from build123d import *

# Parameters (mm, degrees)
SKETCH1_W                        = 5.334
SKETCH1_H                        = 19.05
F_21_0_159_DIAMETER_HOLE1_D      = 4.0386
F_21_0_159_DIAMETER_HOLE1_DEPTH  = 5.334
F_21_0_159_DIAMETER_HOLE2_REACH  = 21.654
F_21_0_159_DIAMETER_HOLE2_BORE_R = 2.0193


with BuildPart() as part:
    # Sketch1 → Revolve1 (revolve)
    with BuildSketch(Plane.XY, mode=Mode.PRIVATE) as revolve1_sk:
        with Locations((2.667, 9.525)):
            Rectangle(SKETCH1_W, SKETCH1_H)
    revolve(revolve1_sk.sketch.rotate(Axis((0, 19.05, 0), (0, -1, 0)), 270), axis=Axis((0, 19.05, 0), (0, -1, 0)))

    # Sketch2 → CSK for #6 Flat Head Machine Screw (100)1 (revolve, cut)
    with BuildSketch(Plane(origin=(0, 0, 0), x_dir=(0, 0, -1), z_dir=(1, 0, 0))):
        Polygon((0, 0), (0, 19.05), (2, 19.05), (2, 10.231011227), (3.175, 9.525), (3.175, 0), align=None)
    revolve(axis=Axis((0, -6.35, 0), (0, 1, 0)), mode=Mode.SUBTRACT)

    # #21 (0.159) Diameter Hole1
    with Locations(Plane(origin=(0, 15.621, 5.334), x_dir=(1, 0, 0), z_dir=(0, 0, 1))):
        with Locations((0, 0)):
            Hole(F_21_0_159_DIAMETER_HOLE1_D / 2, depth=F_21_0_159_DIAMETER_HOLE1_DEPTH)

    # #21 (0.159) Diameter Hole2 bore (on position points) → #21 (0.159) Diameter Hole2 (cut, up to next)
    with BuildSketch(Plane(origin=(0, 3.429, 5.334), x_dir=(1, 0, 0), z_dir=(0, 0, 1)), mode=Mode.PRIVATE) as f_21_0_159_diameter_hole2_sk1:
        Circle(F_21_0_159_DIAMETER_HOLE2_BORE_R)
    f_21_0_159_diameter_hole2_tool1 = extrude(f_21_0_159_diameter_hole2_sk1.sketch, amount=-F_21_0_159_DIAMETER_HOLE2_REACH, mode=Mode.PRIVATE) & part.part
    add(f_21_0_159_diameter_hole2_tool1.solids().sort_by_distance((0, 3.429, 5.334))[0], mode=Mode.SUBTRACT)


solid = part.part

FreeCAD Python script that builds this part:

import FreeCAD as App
import Part
import Sketcher
from FreeCAD import Vector
Q = App.Units.Quantity

doc = App.newDocument("Part")
params = doc.addObject("Spreadsheet::Sheet", "Params")
for row, (alias, value) in enumerate([
    ("sketch1_width", "0.21 in"),
    ("sketch1_height", "0.75 in"),
    ("revolution_angle", "360 deg"),
    ("sketch2_width", "0.75 in"),
    ("sketch2_width2", "0.375 in"),
    ("sketch2_height", "0.125 in"),
    ("groove_angle", "360 deg"),
    ("sketch3_diameter", "0.159 in"),
    ("hole_diameter", "0.159 in"),
    ("hole_depth", "0.21 in"),
    ("sketch4_diameter", "0.159 in"),
], start=1):
    params.set(f"A{row}", alias)
    params.set(f"B{row}", "=" + value)
    params.setAlias(f"B{row}", alias)

body = doc.addObject("PartDesign::Body", "Body")

sketch1 = body.newObject("Sketcher::SketchObject", "Sketch")
sketch1.AttachmentSupport = (doc.getObject("XY_Plane"), [""])
sketch1.MapMode = "FlatFace"
sketch1.addGeometry([
    Part.LineSegment(Vector(0, 19, 0), Vector(0, 0, 0)),
    Part.LineSegment(Vector(0, 0, 0), Vector(5, 0, 0)),
    Part.LineSegment(Vector(5, 0, 0), Vector(5, 19, 0)),
    Part.LineSegment(Vector(5, 19, 0), Vector(0, 19, 0)),
], False)
sketch1.addConstraint([
    Sketcher.Constraint("Coincident", 0, 2, 1, 1),
    Sketcher.Constraint("Coincident", 1, 2, 2, 1),
    Sketcher.Constraint("Coincident", 2, 2, 3, 1),
    Sketcher.Constraint("Coincident", 3, 2, 0, 1),
    Sketcher.Constraint("Vertical", 0),
    Sketcher.Constraint("Horizontal", 1),
    Sketcher.Constraint("Vertical", 2),
    Sketcher.Constraint("Horizontal", 3),
    Sketcher.Constraint("Coincident", 0, 2, -1, 1),
    Sketcher.Constraint("DistanceX", 1, 1, 1, 2, Q("0.21 in")),
    Sketcher.Constraint("DistanceY", 0, 2, 0, 1, Q("0.75 in")),
])
sketch1.setExpression("Constraints[9]", "Params.sketch1_width")
sketch1.setExpression("Constraints[10]", "Params.sketch1_height")
revolution = body.newObject("PartDesign::Revolution", "Revolution")
revolution.Profile = sketch1
revolution.ReferenceAxis = (sketch1, ["V_Axis"])
revolution.setExpression("Angle", "Params.revolution_angle")

sketch2 = body.newObject("Sketcher::SketchObject", "Sketch001")
sketch2.AttachmentSupport = (doc.getObject("YZ_Plane"), [""])
sketch2.MapMode = "FlatFace"
sketch2.addGeometry([
    Part.LineSegment(Vector(19.1, 0, 0), Vector(0, 0, 0)),
    Part.LineSegment(Vector(0, 0, 0), Vector(0, -3.2, 0)),
    Part.LineSegment(Vector(0, -3.2, 0), Vector(9.5, -3.2, 0)),
    Part.LineSegment(Vector(9.5, -3.2, 0), Vector(10.2, -2, 0)),
    Part.LineSegment(Vector(10.2, -2, 0), Vector(19.1, -2, 0)),
    Part.LineSegment(Vector(19.1, -2, 0), Vector(19.1, 0, 0)),
], False)
sketch2.addConstraint([
    Sketcher.Constraint("Coincident", 0, 2, 1, 1),
    Sketcher.Constraint("Coincident", 1, 2, 2, 1),
    Sketcher.Constraint("Coincident", 2, 2, 3, 1),
    Sketcher.Constraint("Coincident", 3, 2, 4, 1),
    Sketcher.Constraint("Coincident", 4, 2, 5, 1),
    Sketcher.Constraint("Coincident", 5, 2, 0, 1),
    Sketcher.Constraint("Horizontal", 0),
    Sketcher.Constraint("Vertical", 1),
    Sketcher.Constraint("Horizontal", 2),
    Sketcher.Constraint("Horizontal", 4),
    Sketcher.Constraint("Vertical", 5),
    Sketcher.Constraint("Coincident", 0, 2, -1, 1),
    Sketcher.Constraint("Angle", 3, Q("59 deg")),
    Sketcher.Constraint("DistanceX", 0, 2, 0, 1, Q("0.75 in")),
    Sketcher.Constraint("DistanceX", 2, 1, 2, 2, Q("0.375 in")),
    Sketcher.Constraint("DistanceY", 1, 2, 1, 1, Q("0.125 in")),
    Sketcher.Constraint("DistanceY", 5, 1, 5, 2, Q("2 mm")),
])
sketch2.setExpression("Constraints[13]", "Params.sketch2_width")
sketch2.setExpression("Constraints[14]", "Params.sketch2_width2")
sketch2.setExpression("Constraints[15]", "Params.sketch2_height")
groove = body.newObject("PartDesign::Groove", "Groove")
groove.Profile = sketch2
groove.ReferenceAxis = (sketch2, ["H_Axis"])
groove.setExpression("Angle", "Params.groove_angle")

sketch3 = body.newObject("Sketcher::SketchObject", "Sketch002")
sketch3.AttachmentSupport = (doc.getObject("XY_Plane"), [""])
sketch3.MapMode = "FlatFace"
sketch3.AttachmentOffset = App.Placement(Vector(0, 0, 0.21 * 25.4), App.Rotation())
sketch3.addGeometry(Part.Circle(Vector(0, 15.6, 0), Vector(0, 0, 1), 2), False)
sketch3.addConstraint([
    Sketcher.Constraint("PointOnObject", 0, 3, -2),
    Sketcher.Constraint("Diameter", 0, Q("0.159 in")),
    Sketcher.Constraint("DistanceY", -1, 1, 0, 3, Q("0.615 in")),
])
sketch3.setExpression("Constraints[1]", "Params.sketch3_diameter")
doc.recompute()
hole = body.newObject("PartDesign::Hole", "Hole")
hole.Profile = sketch3
hole.ThreadType = "None"
hole.setExpression("Diameter", "Params.hole_diameter")
hole.DepthType = "Dimension"
hole.setExpression("Depth", "Params.hole_depth")
hole.DrillPoint = "Flat"

sketch4 = body.newObject("Sketcher::SketchObject", "Sketch003")
sketch4.AttachmentSupport = (doc.getObject("XY_Plane"), [""])
sketch4.MapMode = "FlatFace"
sketch4.AttachmentOffset = App.Placement(Vector(0, 0, 0.21 * 25.4), App.Rotation())
sketch4.addGeometry(Part.Circle(Vector(0, 3.4, 0), Vector(0, 0, 1), 2), False)
sketch4.addConstraint([
    Sketcher.Constraint("PointOnObject", 0, 3, -2),
    Sketcher.Constraint("Diameter", 0, Q("0.159 in")),
    Sketcher.Constraint("DistanceY", -1, 1, 0, 3, Q("0.135 in")),
])
sketch4.setExpression("Constraints[1]", "Params.sketch4_diameter")
pocket1 = body.newObject("PartDesign::Pocket", "Pocket")
pocket1.Profile = sketch4
pocket1.Type = "UpToFirst"

doc.recompute()
